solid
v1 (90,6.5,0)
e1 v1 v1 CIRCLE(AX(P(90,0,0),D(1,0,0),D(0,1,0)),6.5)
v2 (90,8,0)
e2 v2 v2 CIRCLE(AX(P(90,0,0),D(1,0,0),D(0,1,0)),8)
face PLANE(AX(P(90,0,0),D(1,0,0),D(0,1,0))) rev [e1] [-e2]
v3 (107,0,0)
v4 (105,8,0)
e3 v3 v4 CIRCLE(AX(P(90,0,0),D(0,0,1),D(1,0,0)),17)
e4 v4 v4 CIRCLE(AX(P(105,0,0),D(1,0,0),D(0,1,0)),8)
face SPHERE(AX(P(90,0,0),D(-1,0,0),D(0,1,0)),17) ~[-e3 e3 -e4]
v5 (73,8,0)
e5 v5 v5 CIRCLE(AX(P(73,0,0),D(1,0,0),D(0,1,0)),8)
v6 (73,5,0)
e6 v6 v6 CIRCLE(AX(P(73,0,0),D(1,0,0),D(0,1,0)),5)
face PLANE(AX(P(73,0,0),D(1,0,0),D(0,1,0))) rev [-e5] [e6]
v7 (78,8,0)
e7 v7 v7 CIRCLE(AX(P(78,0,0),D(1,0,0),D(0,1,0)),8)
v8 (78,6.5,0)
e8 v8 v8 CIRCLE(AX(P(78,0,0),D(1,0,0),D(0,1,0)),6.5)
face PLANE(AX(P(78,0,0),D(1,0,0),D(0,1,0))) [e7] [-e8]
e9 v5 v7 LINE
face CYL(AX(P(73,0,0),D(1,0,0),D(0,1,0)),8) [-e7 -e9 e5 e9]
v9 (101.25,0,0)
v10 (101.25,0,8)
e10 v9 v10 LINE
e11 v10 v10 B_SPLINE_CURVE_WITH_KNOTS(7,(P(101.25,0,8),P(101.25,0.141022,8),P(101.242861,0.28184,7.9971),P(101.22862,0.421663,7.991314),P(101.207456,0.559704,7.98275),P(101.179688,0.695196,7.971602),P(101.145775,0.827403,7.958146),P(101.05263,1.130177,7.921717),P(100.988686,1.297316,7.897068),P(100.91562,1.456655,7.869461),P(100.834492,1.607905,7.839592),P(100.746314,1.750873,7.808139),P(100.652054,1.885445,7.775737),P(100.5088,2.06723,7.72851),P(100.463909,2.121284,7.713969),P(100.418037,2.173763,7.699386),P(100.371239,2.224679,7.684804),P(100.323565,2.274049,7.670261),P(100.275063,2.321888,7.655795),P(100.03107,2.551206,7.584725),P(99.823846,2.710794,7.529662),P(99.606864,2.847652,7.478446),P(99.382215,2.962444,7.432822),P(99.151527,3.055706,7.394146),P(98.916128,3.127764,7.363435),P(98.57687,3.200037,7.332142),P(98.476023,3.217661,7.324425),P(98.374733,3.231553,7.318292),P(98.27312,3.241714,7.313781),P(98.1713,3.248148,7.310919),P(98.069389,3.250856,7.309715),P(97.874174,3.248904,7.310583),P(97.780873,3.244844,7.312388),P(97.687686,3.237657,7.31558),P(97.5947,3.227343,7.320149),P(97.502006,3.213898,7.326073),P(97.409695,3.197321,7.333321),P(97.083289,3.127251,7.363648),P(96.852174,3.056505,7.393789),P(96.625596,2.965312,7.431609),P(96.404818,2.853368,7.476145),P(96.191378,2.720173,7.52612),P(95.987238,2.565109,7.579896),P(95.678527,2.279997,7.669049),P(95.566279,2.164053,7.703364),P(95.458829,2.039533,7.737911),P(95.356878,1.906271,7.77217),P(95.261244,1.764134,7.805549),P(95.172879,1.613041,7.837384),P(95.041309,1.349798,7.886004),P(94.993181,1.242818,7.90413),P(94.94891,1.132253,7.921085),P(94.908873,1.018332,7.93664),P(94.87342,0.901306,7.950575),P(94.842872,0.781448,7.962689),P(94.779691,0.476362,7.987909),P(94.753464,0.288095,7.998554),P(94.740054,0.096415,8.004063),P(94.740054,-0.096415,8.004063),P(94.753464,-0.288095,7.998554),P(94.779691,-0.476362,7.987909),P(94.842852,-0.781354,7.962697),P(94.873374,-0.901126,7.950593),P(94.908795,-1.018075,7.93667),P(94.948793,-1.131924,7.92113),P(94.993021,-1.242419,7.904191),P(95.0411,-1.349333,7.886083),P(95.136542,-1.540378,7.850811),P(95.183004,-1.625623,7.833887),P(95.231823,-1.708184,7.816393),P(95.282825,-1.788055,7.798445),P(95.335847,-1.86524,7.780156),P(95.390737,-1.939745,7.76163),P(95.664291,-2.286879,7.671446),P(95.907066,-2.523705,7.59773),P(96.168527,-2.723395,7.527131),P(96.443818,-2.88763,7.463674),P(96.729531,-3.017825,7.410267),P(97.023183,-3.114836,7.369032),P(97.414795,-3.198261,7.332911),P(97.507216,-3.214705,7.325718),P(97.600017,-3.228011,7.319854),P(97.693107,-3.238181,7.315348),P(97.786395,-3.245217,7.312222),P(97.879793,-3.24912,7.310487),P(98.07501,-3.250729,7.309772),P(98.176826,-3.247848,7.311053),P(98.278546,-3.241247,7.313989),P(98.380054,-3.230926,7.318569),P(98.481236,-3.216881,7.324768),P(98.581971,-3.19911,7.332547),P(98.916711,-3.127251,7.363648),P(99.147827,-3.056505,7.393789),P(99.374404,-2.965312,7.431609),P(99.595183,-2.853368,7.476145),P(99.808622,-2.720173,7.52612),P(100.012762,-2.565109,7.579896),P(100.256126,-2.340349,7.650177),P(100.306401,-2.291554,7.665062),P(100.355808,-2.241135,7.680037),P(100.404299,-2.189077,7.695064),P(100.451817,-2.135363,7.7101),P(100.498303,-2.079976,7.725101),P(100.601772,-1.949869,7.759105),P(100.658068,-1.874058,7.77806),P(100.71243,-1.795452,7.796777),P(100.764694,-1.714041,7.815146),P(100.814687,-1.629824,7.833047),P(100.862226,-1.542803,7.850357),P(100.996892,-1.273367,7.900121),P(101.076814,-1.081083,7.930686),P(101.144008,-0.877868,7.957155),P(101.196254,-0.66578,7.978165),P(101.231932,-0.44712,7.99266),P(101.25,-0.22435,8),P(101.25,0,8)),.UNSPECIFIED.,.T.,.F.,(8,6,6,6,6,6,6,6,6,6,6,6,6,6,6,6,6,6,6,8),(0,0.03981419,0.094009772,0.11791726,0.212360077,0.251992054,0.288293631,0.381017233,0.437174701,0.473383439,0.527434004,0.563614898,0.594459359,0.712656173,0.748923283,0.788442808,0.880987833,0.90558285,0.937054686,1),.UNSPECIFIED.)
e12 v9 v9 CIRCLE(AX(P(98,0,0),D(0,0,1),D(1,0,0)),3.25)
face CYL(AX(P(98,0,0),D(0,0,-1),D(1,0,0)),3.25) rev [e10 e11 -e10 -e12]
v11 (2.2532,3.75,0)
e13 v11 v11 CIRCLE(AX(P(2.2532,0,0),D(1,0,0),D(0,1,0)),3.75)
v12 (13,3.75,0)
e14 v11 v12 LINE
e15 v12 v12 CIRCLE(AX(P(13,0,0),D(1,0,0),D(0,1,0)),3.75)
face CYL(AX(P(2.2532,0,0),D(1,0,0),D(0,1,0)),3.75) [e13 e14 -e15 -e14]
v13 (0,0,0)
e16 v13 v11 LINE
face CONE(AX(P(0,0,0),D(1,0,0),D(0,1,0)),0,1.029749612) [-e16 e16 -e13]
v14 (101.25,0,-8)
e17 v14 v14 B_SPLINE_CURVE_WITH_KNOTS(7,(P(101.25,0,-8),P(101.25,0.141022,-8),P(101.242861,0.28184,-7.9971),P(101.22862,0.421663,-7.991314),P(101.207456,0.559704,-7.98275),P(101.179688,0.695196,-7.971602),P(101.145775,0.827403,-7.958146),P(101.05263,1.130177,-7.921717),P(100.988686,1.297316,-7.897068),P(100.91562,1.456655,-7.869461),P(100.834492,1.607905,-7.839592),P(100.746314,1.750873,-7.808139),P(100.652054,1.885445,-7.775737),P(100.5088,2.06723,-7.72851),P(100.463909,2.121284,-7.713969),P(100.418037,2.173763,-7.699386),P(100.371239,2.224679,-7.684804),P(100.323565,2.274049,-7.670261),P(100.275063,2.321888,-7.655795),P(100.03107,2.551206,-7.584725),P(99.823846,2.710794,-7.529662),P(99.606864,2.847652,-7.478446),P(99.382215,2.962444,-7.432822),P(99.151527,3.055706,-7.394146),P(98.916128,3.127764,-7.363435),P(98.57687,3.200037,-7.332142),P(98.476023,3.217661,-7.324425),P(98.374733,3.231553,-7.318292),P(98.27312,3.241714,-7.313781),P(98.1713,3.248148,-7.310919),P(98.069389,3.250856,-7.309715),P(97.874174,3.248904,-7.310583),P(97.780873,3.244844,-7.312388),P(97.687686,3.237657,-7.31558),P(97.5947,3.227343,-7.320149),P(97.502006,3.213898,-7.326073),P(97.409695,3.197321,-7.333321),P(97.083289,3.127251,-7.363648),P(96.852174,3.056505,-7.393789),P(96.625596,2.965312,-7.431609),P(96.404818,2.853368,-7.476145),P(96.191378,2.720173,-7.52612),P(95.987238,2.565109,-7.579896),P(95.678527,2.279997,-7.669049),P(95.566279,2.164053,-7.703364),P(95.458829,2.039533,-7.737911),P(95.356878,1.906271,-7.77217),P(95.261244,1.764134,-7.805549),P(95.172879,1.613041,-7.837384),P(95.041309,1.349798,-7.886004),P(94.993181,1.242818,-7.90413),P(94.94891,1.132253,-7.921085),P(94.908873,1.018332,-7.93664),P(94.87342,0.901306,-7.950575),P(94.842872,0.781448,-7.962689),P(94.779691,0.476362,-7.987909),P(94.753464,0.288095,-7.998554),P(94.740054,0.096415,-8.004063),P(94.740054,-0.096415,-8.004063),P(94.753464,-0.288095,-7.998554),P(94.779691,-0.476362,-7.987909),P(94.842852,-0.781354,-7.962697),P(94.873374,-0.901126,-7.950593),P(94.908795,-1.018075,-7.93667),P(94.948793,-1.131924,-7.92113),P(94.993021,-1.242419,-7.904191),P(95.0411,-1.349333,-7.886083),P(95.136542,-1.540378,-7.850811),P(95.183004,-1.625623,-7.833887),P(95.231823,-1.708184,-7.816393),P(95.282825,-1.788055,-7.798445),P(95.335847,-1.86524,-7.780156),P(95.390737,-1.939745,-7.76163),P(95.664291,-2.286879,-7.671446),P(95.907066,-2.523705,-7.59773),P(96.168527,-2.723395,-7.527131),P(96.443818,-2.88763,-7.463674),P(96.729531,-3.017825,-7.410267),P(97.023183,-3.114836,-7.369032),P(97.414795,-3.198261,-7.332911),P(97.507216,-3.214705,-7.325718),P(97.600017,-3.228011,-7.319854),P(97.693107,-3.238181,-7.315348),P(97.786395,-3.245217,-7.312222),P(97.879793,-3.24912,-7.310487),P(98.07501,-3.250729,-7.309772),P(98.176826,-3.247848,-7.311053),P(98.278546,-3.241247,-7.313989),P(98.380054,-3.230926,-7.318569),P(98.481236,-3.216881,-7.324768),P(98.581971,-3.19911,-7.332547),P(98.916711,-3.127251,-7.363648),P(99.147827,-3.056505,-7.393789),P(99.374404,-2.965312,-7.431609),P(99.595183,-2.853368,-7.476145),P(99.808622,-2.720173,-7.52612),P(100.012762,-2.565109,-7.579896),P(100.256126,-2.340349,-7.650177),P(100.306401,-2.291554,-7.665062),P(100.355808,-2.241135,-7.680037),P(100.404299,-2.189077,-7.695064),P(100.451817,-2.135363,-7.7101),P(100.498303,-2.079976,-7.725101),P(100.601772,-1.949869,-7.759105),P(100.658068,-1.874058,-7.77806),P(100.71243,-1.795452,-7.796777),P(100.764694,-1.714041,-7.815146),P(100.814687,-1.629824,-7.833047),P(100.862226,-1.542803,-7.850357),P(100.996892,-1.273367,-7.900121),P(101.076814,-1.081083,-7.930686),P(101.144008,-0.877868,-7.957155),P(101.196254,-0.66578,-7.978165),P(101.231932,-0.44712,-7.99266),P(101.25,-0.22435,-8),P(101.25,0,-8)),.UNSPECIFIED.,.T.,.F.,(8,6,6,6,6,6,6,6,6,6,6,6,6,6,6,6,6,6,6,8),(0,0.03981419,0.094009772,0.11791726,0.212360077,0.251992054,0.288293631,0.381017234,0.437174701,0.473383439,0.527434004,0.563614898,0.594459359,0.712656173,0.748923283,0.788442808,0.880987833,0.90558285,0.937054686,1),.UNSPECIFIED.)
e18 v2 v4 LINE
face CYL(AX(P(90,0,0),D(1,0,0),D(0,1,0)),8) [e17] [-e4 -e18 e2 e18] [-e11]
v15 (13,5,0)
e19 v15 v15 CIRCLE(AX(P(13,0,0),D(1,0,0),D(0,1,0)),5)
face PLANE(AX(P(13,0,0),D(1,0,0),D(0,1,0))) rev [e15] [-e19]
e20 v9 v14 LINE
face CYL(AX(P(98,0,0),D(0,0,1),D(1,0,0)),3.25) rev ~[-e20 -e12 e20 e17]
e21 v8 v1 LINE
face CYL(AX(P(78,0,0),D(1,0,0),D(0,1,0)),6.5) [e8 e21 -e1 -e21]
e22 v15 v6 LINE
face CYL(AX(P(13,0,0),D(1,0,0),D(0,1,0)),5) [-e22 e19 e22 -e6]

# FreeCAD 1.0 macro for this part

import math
import FreeCAD as App
import Part
import Sketcher

V = App.Vector
Q = App.Units.Quantity

doc = App.newDocument("Part")
body = doc.addObject("PartDesign::Body", "Body")

# Sketch on XY plane
sketch1 = body.newObject("Sketcher::SketchObject", "Sketch")
sketch1.AttachmentSupport = (doc.getObject("XY_Plane"), [""])
sketch1.MapMode = "FlatFace"
sketch1.addGeometry([
    Part.LineSegment(V(2.3, 3.8, 0), V(0, 0, 0)),  # 0
    Part.LineSegment(V(0, 0, 0), V(107, 0, 0)),  # 1
    Part.ArcOfCircle(Part.Circle(V(90, 0, 0), V(0, 0, 1), 17), math.radians(0), math.radians(28)),  # 2
    Part.LineSegment(V(105, 8, 0), V(90, 8, 0)),  # 3
    Part.LineSegment(V(90, 8, 0), V(90, 6.5, 0)),  # 4
    Part.LineSegment(V(90, 6.5, 0), V(78, 6.5, 0)),  # 5
    Part.LineSegment(V(78, 6.5, 0), V(78, 8, 0)),  # 6
    Part.LineSegment(V(78, 8, 0), V(73, 8, 0)),  # 7
    Part.LineSegment(V(73, 8, 0), V(73, 5, 0)),  # 8
    Part.LineSegment(V(73, 5, 0), V(13, 5, 0)),  # 9
    Part.LineSegment(V(13, 5, 0), V(13, 3.8, 0)),  # 10
    Part.LineSegment(V(13, 3.8, 0), V(2.3, 3.8, 0)),  # 11
], False)
sketch1.addConstraint([
    Sketcher.Constraint("Coincident", 0, 2, 1, 1),
    Sketcher.Constraint("Coincident", 1, 2, 2, 1),
    Sketcher.Constraint("Coincident", 2, 2, 3, 1),
    Sketcher.Constraint("Coincident", 3, 2, 4, 1),
    Sketcher.Constraint("Coincident", 4, 2, 5, 1),
    Sketcher.Constraint("Coincident", 5, 2, 6, 1),
    Sketcher.Constraint("Coincident", 6, 2, 7, 1),
    Sketcher.Constraint("Coincident", 7, 2, 8, 1),
    Sketcher.Constraint("Coincident", 8, 2, 9, 1),
    Sketcher.Constraint("Coincident", 9, 2, 10, 1),
    Sketcher.Constraint("Coincident", 10, 2, 11, 1),
    Sketcher.Constraint("Coincident", 11, 2, 0, 1),
    Sketcher.Constraint("Horizontal", 1),
    Sketcher.Constraint("Horizontal", 3),
    Sketcher.Constraint("Vertical", 4),
    Sketcher.Constraint("Horizontal", 5),
    Sketcher.Constraint("Vertical", 6),
    Sketcher.Constraint("Horizontal", 7),
    Sketcher.Constraint("Vertical", 8),
    Sketcher.Constraint("Horizontal", 9),
    Sketcher.Constraint("Vertical", 10),
    Sketcher.Constraint("Horizontal", 11),
    Sketcher.Constraint("Coincident", 0, 2, -1, 1),
    Sketcher.Constraint("PointOnObject", 2, 3, -1),
    Sketcher.Constraint("Horizontal", 3, 2, 6, 2),
    Sketcher.Constraint("Vertical", 2, 3, 3, 2),
    Sketcher.Constraint("Radius", 2, Q("17 mm")),
    Sketcher.Constraint("DistanceX", 1, 1, 1, 2, Q("107 mm")),
    Sketcher.Constraint("DistanceX", 3, 2, 3, 1, Q("15 mm")),
    Sketcher.Constraint("DistanceX", 5, 2, 5, 1, Q("12 mm")),
    Sketcher.Constraint("DistanceX", 7, 2, 7, 1, Q("5 mm")),
    Sketcher.Constraint("DistanceY", 8, 2, 8, 1, Q("3 mm")),
    Sketcher.Constraint("DistanceY", 4, 2, 4, 1, Q("1.5 mm")),
    Sketcher.Constraint("DistanceX", -1, 1, 9, 2, Q("13 mm")),
    Sketcher.Constraint("DistanceY", 10, 2, 10, 1, Q("1.25 mm")),
    Sketcher.Constraint("Angle", 0, Q("-120.9997 deg")),
])
revolution = body.newObject("PartDesign::Revolution", "Revolution")
revolution.Profile = sketch1
revolution.ReferenceAxis = (sketch1, ["H_Axis"])
revolution.Angle = 360

# Sketch on XY plane
sketch2 = body.newObject("Sketcher::SketchObject", "Sketch001")
sketch2.AttachmentSupport = (doc.getObject("XY_Plane"), [""])
sketch2.MapMode = "FlatFace"
sketch2.addGeometry(Part.Circle(V(98, 0, 0), V(0, 0, 1), 3.2), False)
sketch2.addConstraint([
    Sketcher.Constraint("PointOnObject", 0, 3, -1),
    Sketcher.Constraint("Diameter", 0, Q("6.5 mm")),
    Sketcher.Constraint("DistanceX", -1, 1, 0, 3, Q("98 mm")),
])
pocket1 = body.newObject("PartDesign::Pocket", "Pocket")
pocket1.Profile = sketch2
pocket1.Type = "ThroughAll"
pocket1.Midplane = True

doc.recompute()
